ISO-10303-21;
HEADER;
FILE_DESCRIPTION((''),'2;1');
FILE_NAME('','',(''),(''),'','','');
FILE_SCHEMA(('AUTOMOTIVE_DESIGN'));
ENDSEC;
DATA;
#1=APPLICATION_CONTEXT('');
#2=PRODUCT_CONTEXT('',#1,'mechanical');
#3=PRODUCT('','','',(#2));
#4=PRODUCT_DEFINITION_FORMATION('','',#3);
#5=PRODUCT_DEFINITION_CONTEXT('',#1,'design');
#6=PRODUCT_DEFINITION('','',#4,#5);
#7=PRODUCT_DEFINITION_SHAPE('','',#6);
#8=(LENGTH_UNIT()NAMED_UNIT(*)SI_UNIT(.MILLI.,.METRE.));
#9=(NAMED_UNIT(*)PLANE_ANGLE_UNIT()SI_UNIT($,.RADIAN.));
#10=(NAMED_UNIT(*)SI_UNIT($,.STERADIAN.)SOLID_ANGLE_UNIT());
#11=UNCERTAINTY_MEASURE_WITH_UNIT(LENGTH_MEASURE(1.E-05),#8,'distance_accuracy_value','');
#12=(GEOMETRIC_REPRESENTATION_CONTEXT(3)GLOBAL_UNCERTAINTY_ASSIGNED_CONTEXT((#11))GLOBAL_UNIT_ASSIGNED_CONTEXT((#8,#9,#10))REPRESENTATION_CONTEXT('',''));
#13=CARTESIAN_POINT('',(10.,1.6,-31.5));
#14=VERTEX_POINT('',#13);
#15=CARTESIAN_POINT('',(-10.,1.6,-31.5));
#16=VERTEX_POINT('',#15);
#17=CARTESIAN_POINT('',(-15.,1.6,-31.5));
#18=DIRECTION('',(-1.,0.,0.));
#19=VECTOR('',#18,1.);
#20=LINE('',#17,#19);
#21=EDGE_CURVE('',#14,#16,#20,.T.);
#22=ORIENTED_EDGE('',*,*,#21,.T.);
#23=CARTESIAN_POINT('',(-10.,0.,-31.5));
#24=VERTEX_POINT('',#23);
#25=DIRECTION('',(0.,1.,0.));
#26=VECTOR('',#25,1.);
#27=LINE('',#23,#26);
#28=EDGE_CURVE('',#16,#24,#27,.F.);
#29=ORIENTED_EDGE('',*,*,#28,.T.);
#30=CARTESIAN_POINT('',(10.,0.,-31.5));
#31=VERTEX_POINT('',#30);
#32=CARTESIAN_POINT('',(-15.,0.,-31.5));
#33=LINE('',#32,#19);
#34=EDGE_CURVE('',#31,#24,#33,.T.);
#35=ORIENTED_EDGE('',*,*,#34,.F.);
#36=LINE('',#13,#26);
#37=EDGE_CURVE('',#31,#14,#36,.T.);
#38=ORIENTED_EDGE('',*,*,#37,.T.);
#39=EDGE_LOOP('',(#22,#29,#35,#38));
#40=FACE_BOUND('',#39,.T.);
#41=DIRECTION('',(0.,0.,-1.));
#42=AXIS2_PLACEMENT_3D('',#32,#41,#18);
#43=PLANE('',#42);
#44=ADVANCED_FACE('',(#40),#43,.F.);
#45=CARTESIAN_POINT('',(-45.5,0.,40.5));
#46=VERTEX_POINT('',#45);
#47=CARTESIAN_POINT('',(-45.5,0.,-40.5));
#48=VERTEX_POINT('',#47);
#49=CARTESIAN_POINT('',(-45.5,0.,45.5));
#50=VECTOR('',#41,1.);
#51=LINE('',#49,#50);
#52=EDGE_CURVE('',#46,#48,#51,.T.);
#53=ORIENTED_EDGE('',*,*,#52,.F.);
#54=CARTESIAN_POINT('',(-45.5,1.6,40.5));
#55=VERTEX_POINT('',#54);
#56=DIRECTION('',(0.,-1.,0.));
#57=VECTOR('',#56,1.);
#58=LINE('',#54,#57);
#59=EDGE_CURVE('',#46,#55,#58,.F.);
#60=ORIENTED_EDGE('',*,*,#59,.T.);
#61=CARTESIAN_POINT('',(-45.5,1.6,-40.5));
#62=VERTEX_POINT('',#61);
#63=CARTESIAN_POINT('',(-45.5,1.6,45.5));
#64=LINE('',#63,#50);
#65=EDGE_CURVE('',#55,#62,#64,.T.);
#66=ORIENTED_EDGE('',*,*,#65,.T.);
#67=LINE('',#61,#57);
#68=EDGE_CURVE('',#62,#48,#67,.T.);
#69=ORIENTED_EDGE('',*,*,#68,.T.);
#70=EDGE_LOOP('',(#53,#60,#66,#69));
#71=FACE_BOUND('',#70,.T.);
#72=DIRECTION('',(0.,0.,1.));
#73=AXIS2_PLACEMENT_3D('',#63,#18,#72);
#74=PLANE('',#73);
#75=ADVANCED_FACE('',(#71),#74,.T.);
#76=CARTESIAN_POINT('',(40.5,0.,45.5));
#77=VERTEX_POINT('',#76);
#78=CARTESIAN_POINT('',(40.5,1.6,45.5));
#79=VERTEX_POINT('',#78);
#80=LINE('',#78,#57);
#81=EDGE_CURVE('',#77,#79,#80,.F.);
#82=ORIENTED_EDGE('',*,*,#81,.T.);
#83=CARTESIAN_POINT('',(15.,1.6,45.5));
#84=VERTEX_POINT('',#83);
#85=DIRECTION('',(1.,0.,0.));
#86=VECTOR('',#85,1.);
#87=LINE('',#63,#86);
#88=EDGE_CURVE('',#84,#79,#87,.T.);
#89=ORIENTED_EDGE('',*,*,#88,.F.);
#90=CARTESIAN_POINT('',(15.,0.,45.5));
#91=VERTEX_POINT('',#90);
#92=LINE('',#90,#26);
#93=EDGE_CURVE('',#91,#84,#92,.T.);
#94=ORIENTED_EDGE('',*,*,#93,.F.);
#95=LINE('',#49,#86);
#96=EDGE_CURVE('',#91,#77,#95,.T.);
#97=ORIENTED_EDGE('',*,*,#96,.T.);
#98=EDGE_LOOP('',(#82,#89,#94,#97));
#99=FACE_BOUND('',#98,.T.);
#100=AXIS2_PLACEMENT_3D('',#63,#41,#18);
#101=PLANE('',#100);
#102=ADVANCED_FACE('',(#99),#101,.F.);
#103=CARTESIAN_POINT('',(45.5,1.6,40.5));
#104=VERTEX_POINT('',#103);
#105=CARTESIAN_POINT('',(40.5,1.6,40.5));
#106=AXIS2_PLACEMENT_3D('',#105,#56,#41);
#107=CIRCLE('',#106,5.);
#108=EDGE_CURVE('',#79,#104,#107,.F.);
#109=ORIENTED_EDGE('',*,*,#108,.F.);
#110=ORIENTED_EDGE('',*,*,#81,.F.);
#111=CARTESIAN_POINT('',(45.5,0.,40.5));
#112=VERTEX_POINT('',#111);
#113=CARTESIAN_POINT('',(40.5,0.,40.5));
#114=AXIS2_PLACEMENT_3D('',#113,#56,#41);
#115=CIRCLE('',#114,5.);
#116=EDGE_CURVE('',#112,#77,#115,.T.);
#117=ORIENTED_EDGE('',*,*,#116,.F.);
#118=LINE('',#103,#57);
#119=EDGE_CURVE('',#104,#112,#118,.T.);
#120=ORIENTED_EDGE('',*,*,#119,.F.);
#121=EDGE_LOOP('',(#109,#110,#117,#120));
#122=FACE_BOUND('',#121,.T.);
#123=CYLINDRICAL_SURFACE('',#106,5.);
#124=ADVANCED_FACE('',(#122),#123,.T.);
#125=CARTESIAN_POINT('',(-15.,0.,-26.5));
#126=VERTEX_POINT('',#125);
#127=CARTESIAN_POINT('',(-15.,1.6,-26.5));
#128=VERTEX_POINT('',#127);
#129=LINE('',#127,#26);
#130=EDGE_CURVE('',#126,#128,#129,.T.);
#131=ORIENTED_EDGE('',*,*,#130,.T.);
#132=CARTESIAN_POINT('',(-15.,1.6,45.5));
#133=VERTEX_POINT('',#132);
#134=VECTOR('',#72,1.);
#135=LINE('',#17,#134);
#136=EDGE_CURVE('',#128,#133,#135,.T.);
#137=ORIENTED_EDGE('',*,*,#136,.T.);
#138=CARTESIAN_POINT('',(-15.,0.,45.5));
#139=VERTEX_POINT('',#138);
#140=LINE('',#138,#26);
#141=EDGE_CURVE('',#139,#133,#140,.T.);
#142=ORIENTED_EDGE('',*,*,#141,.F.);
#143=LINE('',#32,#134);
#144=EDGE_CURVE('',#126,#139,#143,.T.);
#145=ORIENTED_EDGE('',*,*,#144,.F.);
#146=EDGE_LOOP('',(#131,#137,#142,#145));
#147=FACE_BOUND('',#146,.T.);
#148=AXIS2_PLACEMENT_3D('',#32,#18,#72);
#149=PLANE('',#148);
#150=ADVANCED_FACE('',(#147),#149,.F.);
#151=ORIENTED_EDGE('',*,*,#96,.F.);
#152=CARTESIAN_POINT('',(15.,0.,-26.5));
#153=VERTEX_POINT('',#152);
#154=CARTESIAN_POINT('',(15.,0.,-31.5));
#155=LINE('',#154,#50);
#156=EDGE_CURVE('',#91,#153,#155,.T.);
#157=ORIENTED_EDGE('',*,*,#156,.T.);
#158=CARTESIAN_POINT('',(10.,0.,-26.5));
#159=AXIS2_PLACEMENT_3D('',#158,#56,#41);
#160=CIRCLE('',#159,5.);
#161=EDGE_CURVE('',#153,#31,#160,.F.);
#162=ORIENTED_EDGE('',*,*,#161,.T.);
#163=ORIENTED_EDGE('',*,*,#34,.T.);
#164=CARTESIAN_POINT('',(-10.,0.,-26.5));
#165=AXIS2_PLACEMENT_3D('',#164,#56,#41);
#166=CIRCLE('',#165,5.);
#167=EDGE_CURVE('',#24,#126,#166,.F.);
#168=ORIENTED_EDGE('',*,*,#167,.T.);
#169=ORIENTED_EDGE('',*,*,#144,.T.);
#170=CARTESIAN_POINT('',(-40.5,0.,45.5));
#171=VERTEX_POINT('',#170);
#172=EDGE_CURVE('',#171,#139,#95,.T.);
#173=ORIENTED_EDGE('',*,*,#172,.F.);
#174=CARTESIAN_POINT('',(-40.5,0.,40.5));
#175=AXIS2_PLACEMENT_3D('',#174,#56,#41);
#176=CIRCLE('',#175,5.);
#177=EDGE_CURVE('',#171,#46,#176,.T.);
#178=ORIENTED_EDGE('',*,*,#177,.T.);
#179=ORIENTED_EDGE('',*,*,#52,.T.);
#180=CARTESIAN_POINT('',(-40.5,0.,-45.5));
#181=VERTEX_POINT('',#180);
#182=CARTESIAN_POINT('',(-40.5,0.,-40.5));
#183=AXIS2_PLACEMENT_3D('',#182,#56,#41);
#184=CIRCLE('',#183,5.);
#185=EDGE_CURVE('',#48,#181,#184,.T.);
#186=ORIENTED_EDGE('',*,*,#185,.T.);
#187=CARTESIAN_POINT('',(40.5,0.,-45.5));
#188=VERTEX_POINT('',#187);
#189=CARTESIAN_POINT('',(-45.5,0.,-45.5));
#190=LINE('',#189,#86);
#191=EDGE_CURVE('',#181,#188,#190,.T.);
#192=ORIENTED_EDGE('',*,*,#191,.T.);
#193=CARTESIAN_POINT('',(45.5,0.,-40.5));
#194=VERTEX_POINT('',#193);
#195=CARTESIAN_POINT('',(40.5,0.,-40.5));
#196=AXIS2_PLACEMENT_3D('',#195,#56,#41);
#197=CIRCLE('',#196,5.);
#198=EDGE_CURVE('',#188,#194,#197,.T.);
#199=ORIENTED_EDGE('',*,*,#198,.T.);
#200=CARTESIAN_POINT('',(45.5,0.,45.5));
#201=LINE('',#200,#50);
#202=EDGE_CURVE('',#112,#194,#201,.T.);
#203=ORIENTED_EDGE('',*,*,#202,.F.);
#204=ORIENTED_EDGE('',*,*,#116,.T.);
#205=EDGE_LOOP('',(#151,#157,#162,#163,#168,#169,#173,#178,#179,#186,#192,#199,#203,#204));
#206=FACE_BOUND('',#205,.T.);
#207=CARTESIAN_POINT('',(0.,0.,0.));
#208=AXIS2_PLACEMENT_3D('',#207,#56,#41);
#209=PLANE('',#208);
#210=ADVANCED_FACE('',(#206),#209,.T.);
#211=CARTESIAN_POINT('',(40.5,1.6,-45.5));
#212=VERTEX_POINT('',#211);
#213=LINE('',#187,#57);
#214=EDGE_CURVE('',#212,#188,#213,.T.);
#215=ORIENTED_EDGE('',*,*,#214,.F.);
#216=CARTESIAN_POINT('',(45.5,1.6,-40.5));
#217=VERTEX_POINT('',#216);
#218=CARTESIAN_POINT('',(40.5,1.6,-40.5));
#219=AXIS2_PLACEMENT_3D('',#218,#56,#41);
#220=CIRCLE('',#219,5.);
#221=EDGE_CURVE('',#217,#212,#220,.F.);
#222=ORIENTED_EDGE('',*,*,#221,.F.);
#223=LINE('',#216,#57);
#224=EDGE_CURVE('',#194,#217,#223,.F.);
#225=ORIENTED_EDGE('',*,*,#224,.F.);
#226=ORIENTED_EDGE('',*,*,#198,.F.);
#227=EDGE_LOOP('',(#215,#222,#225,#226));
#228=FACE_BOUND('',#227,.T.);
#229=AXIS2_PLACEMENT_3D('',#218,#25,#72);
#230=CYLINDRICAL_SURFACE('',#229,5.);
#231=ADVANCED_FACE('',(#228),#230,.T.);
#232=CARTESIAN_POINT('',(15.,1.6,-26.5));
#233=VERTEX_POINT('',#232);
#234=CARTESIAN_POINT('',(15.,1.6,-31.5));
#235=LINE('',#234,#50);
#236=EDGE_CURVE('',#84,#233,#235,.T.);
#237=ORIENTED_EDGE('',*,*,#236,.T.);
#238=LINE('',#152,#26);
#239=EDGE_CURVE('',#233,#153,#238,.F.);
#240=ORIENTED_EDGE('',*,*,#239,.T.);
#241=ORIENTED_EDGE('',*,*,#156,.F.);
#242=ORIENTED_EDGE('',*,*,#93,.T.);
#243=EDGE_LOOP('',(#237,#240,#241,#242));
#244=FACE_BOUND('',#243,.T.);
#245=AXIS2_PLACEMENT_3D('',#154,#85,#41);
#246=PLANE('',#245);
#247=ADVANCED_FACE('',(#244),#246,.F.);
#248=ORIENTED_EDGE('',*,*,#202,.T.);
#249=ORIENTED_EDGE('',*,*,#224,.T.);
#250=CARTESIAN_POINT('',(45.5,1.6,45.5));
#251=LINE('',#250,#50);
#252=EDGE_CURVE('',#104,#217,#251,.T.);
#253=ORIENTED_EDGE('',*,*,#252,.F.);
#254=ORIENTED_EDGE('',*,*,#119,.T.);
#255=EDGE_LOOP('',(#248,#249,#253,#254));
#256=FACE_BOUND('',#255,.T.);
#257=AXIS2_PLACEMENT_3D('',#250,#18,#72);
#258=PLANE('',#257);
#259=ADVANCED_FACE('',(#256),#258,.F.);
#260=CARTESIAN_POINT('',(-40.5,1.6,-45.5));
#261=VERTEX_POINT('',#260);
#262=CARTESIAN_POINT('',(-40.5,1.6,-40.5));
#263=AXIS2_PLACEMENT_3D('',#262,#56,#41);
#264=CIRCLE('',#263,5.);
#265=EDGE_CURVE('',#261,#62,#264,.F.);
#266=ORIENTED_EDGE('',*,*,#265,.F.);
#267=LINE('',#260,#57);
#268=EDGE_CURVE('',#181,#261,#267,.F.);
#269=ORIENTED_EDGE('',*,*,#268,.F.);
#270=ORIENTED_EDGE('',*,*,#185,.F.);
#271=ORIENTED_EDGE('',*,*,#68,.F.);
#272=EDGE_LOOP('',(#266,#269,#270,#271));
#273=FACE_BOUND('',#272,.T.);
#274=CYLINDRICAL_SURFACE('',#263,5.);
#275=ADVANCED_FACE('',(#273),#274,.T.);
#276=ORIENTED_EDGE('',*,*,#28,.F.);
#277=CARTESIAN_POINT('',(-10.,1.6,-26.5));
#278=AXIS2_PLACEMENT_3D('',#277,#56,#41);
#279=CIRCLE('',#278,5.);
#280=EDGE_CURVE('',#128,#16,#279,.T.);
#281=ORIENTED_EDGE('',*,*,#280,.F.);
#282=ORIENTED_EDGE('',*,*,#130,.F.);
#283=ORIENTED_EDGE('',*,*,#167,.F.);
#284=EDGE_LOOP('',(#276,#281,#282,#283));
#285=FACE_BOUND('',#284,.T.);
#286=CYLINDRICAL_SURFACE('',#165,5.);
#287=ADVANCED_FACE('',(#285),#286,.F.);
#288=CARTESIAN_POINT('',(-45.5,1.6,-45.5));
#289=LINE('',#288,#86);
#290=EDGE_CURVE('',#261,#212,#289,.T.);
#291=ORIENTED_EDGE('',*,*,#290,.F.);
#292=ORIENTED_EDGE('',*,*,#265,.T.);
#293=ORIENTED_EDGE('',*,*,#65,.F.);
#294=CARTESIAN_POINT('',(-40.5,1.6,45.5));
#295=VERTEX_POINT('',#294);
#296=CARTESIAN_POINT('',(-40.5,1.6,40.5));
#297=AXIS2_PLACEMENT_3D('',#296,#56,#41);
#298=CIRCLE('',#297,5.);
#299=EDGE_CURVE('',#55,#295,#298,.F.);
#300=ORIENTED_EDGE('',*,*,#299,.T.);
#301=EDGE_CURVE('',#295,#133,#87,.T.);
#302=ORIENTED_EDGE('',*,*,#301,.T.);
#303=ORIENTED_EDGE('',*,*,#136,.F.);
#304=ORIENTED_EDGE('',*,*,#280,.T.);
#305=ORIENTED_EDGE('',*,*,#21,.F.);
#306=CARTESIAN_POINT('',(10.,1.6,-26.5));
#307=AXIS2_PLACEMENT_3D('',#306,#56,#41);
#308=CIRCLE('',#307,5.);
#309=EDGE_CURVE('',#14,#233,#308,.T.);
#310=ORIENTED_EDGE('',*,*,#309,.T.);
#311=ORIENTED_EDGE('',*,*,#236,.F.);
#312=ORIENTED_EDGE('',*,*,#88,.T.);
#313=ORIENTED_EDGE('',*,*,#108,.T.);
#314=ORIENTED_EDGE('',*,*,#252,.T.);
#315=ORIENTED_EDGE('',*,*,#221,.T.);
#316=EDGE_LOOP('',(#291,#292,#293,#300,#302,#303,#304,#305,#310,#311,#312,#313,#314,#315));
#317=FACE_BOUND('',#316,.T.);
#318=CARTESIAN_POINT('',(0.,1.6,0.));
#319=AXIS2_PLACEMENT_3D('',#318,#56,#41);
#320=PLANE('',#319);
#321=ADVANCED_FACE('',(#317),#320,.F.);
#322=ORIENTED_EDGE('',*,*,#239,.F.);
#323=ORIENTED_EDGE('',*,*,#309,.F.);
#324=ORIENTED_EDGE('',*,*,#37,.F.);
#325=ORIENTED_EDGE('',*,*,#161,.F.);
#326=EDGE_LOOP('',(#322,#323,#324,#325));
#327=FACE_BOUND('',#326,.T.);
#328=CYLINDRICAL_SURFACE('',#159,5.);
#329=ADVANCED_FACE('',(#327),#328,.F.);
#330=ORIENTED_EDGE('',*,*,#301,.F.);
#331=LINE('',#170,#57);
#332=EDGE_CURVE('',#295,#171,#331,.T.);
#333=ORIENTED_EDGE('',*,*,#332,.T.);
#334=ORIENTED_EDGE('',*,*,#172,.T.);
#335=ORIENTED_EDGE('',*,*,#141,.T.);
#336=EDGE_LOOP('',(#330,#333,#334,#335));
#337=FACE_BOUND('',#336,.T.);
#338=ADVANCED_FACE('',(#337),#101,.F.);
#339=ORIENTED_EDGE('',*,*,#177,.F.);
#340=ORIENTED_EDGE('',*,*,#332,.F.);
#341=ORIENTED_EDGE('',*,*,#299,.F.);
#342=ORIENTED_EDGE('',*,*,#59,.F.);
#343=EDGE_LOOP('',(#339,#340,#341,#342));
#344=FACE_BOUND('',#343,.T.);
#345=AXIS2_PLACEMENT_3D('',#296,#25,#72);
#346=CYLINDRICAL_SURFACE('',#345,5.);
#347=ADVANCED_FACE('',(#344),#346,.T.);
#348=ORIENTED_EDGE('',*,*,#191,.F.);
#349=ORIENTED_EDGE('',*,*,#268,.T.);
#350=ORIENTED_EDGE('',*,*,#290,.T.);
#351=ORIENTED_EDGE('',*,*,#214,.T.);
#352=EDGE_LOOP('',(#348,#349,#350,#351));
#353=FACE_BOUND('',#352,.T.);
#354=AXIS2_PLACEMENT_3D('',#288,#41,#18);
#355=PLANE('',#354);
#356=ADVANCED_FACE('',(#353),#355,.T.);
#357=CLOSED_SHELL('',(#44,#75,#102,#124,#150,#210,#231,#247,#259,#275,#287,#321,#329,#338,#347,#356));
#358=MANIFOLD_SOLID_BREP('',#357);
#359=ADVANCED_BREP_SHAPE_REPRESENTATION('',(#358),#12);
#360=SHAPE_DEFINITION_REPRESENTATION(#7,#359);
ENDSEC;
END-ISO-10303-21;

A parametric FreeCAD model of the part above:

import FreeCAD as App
import Part
import Sketcher
Q = App.Units.Quantity


def edges_at(feature, points):
    """Names of the edges that pass closest to the given points."""
    edges = feature.Shape.Edges
    near = lambda p: min(range(len(edges)), key=lambda i: edges[i].distToShape(Part.Vertex(*p))[0])
    return sorted({f"Edge{near(p) + 1}" for p in points})

doc = App.newDocument("Part")
body = doc.addObject("PartDesign::Body", "Body")

sketch1 = body.newObject("Sketcher::SketchObject", "Sketch")
sketch1.AttachmentSupport = (doc.getObject("XZ_Plane"), [""])
sketch1.MapMode = "FlatFace"
sketch1.addGeometry([
    Part.LineSegment(App.Vector(-46, -46, 0), App.Vector(-46, 46, 0)),
    Part.LineSegment(App.Vector(-46, 46, 0), App.Vector(46, 46, 0)),
    Part.LineSegment(App.Vector(46, 46, 0), App.Vector(46, -46, 0)),
    Part.LineSegment(App.Vector(46, -46, 0), App.Vector(-46, -46, 0)),
], False)
sketch1.addConstraint([
    Sketcher.Constraint("Coincident", 0, 2, 1, 1),
    Sketcher.Constraint("Coincident", 1, 2, 2, 1),
    Sketcher.Constraint("Coincident", 2, 2, 3, 1),
    Sketcher.Constraint("Coincident", 3, 2, 0, 1),
    Sketcher.Constraint("Vertical", 0),
    Sketcher.Constraint("Horizontal", 1),
    Sketcher.Constraint("Vertical", 2),
    Sketcher.Constraint("Horizontal", 3),
    Sketcher.Constraint("Symmetric", 0, 2, 2, 2, -1, 1),
    Sketcher.Constraint("Equal", 3, 0),
    Sketcher.Constraint("DistanceX", 1, 1, 1, 2, Q("91 mm")),
])
pad1 = body.newObject("PartDesign::Pad", "Pad")
pad1.Profile = sketch1
pad1.Length = 1.6
pad1.Reversed = True

sketch2 = body.newObject("Sketcher::SketchObject", "Sketch001")
sketch2.AttachmentSupport = (doc.getObject("XZ_Plane"), [""])
sketch2.MapMode = "FlatFace"
sketch2.AttachmentOffset = App.Placement(App.Vector(0, 0, -1.6), App.Rotation())
sketch2.addGeometry([
    Part.LineSegment(App.Vector(-15, -32, 0), App.Vector(-15, 46, 0)),
    Part.LineSegment(App.Vector(-15, 46, 0), App.Vector(15, 46, 0)),
    Part.LineSegment(App.Vector(15, 46, 0), App.Vector(15, -32, 0)),
    Part.LineSegment(App.Vector(15, -32, 0), App.Vector(-15, -32, 0)),
], False)
sketch2.addConstraint([
    Sketcher.Constraint("Coincident", 0, 2, 1, 1),
    Sketcher.Constraint("Coincident", 1, 2, 2, 1),
    Sketcher.Constraint("Coincident", 2, 2, 3, 1),
    Sketcher.Constraint("Coincident", 3, 2, 0, 1),
    Sketcher.Constraint("Vertical", 0),
    Sketcher.Constraint("Horizontal", 1),
    Sketcher.Constraint("Vertical", 2),
    Sketcher.Constraint("Horizontal", 3),
    Sketcher.Constraint("DistanceX", 1, 1, 1, 2, Q("30 mm")),
    Sketcher.Constraint("DistanceY", 0, 1, 0, 2, Q("77 mm")),
    Sketcher.Constraint("DistanceX", 0, 2, -1, 1, Q("15 mm")),
    Sketcher.Constraint("DistanceY", -1, 1, 0, 2, Q("45.5 mm")),
])
pocket1 = body.newObject("PartDesign::Pocket", "Pocket")
pocket1.Profile = sketch2
pocket1.Type = "ThroughAll"
pocket1.Reversed = True
doc.recompute()

fillet = body.newObject("PartDesign::Fillet", "Fillet")
fillet.Base = (pocket1, edges_at(pocket1, [
    (15, 0.8, -31.5),
    (-15, 0.8, -31.5),
    (-45.5, 0.8, 45.5),
    (45.5, 0.8, 45.5),
    (45.5, 0.8, -45.5),
    (-45.5, 0.8, -45.5),
]))
fillet.Radius = 5

doc.recompute()
